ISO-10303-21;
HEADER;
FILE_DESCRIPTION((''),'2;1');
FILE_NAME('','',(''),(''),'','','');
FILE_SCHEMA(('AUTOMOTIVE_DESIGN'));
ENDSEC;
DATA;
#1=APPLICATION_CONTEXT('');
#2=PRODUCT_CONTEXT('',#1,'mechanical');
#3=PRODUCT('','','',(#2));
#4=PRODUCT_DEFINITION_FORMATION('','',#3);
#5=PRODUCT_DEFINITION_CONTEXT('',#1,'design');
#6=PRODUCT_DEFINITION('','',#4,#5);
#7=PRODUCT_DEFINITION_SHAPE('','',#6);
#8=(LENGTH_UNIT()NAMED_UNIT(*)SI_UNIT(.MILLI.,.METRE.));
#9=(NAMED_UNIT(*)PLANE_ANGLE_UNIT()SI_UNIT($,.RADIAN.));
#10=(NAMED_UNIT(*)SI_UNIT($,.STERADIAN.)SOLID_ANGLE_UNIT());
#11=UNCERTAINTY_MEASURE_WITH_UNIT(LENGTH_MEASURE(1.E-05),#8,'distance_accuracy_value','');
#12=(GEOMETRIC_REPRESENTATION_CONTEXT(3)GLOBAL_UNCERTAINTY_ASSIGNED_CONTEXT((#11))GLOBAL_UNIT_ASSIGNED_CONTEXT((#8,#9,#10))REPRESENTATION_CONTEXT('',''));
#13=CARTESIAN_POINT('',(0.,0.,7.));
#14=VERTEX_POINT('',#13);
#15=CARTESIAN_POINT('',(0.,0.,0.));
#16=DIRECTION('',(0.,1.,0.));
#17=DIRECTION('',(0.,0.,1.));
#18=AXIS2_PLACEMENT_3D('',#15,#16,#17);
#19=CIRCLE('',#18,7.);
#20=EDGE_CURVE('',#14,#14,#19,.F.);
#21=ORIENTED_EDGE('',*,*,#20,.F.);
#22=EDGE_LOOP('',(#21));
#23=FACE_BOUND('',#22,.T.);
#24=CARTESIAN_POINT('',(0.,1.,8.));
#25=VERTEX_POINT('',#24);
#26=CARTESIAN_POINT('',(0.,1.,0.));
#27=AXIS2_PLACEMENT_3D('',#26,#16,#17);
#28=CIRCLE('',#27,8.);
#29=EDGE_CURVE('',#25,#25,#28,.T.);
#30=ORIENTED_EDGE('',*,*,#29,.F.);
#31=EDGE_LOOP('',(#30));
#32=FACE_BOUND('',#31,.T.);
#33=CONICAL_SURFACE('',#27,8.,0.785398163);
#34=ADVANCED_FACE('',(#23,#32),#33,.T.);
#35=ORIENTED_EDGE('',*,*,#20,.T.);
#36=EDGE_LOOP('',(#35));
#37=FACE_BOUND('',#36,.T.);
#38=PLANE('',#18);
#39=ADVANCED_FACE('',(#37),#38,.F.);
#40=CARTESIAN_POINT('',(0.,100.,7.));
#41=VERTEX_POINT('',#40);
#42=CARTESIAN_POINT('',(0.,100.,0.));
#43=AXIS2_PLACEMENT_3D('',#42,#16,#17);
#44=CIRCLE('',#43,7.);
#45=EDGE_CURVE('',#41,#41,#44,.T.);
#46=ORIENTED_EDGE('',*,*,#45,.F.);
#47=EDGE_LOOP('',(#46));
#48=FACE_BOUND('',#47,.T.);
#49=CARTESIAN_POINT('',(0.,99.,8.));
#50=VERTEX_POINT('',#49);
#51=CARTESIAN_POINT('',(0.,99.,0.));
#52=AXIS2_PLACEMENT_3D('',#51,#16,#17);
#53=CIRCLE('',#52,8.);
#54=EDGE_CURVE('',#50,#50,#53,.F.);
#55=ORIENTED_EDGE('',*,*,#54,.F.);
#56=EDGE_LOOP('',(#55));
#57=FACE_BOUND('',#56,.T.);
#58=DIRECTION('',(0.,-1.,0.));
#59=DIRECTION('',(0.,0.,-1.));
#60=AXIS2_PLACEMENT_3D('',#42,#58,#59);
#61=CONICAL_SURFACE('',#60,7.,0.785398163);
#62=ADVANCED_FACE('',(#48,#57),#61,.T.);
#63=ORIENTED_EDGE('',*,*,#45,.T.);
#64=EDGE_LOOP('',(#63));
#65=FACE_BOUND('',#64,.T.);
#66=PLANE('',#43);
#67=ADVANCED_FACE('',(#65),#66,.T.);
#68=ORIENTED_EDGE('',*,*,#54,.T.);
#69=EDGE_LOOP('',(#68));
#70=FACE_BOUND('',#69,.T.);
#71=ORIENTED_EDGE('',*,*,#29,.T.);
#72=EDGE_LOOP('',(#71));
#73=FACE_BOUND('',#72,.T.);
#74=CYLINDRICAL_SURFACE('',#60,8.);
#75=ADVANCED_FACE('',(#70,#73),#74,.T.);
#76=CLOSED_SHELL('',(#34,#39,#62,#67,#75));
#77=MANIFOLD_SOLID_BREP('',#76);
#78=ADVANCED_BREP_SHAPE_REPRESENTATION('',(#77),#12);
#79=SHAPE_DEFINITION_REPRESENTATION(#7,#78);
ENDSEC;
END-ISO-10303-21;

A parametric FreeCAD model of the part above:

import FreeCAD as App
import Part
import Sketcher

V = App.Vector
Q = App.Units.Quantity


def edges_at(feature, points):
    """Names of the edges that pass closest to the given points."""
    edges = feature.Shape.Edges
    near = lambda p: min(range(len(edges)), key=lambda i: edges[i].distToShape(Part.Vertex(*p))[0])
    return sorted({f"Edge{near(p) + 1}" for p in points})

doc = App.newDocument("Part")
body = doc.addObject("PartDesign::Body", "Body")

sketch1 = body.newObject("Sketcher::SketchObject", "Sketch")
sketch1.AttachmentSupport = (doc.getObject("XZ_Plane"), [""])
sketch1.MapMode = "FlatFace"
sketch1.addGeometry(Part.Circle(V(0, 0, 0), V(0, 0, 1), 8), False)
sketch1.addConstraint([
    Sketcher.Constraint("Coincident", 0, 3, -1, 1),
    Sketcher.Constraint("Diameter", 0, Q("16 mm")),
])
pad1 = body.newObject("PartDesign::Pad", "Pad")
pad1.Profile = sketch1
pad1.Length = 100
pad1.Reversed = True
doc.recompute()

chamfer = body.newObject("PartDesign::Chamfer", "Chamfer")
chamfer.Base = (pad1, edges_at(pad1, [(0, 0, -8), (0, 100, -8)]))
chamfer.Size = 1

doc.recompute()
